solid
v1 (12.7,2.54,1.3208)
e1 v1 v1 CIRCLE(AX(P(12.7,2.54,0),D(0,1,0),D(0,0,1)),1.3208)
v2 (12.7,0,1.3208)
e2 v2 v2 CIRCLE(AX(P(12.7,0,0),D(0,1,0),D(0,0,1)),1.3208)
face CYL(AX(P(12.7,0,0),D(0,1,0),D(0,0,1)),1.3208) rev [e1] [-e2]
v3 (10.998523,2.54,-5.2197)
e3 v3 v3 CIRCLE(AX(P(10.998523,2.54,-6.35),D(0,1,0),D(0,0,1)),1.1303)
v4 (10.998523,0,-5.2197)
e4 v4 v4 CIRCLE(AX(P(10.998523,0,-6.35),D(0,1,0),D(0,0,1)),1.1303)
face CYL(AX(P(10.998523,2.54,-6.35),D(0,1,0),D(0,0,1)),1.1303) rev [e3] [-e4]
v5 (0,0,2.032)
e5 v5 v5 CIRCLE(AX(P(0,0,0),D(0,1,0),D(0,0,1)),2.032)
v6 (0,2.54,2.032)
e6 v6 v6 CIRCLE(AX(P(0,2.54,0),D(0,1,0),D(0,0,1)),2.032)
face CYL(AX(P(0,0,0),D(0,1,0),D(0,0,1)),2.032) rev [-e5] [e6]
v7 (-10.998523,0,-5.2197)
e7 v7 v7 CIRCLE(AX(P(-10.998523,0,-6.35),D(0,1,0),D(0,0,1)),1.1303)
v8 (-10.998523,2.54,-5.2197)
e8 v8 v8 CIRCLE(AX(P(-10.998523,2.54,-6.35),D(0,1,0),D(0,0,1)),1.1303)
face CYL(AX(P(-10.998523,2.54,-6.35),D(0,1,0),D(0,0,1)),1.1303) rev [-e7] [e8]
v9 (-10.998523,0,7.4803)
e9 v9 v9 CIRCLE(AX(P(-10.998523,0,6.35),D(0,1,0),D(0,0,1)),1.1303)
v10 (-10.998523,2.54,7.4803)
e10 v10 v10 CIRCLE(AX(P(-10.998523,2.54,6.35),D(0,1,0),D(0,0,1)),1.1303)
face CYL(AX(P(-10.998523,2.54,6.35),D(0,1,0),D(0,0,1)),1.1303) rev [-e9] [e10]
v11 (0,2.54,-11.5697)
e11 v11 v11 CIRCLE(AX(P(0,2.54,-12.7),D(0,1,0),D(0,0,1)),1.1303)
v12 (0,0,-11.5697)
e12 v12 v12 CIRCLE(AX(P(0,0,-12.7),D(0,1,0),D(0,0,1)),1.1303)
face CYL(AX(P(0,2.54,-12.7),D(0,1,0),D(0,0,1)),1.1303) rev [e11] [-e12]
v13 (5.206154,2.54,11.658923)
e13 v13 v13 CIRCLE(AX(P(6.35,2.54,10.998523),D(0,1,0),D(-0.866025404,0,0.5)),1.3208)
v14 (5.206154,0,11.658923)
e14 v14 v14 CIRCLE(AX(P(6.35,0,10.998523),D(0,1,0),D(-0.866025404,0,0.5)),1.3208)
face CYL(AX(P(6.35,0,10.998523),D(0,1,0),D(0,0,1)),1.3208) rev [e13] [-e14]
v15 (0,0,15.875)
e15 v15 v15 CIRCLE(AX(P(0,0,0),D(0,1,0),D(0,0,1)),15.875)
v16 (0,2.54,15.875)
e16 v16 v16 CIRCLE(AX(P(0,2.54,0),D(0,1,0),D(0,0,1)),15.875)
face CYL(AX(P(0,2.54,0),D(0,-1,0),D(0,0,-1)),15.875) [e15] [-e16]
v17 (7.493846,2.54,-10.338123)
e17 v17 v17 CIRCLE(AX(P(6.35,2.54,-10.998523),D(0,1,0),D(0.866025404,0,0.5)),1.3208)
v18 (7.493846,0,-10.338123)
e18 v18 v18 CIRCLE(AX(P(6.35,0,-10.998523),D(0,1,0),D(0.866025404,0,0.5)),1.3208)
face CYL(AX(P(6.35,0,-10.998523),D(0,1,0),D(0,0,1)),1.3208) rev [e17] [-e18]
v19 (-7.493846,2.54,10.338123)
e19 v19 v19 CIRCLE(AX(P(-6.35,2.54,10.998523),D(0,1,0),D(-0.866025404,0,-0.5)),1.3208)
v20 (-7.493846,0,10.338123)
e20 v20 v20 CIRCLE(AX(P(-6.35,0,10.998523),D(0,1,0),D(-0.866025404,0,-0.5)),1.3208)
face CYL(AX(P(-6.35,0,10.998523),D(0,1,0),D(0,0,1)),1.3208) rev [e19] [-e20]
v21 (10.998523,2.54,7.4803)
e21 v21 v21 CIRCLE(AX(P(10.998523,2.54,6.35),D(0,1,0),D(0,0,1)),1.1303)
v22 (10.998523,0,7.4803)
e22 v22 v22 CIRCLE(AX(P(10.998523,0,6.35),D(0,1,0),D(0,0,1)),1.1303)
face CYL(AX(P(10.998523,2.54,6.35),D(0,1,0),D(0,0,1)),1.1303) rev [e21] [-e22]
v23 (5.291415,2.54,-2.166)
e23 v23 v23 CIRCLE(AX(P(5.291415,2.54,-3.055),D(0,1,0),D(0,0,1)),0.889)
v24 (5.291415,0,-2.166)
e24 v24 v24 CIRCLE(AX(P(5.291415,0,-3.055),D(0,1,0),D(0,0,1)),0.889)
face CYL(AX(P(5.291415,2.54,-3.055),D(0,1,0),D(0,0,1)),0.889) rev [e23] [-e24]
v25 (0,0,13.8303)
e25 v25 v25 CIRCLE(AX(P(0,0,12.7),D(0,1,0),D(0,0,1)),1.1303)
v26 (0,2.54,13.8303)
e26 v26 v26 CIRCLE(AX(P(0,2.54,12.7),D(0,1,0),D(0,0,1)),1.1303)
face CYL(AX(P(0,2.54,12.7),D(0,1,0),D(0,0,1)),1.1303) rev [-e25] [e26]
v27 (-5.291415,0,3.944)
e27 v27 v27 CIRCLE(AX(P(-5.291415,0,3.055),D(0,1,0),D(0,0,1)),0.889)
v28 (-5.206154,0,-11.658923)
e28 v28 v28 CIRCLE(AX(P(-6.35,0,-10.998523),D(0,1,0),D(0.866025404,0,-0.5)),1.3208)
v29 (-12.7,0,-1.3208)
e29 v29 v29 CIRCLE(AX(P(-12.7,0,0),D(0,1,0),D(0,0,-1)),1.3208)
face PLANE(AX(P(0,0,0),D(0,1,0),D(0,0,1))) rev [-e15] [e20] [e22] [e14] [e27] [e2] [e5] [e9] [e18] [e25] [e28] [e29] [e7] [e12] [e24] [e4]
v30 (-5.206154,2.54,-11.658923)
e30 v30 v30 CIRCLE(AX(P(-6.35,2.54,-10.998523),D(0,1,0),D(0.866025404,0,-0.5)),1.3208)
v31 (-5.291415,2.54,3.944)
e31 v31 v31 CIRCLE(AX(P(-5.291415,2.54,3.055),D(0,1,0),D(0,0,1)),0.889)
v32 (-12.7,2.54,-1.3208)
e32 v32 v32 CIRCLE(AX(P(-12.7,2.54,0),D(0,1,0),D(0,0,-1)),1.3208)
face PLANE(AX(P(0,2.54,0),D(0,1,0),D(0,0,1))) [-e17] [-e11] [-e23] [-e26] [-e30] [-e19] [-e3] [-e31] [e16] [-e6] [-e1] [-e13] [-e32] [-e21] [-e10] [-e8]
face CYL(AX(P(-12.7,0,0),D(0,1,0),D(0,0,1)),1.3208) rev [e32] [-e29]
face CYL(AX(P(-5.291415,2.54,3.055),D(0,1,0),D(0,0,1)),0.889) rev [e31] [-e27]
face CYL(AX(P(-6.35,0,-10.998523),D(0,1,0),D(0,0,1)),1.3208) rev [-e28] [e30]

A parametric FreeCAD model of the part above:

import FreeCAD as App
import Part
import Sketcher

V = App.Vector
Q = App.Units.Quantity

doc = App.newDocument("Part")
body = doc.addObject("PartDesign::Body", "Body")

# Sketch on XZ plane
sketch1 = body.newObject("Sketcher::SketchObject", "Sketch")
sketch1.AttachmentSupport = (doc.getObject("XZ_Plane"), [""])
sketch1.MapMode = "FlatFace"
sketch1.addGeometry(Part.Circle(V(0, 0, 0), V(0, 0, 1), 16), False)
sketch1.addConstraint(Sketcher.Constraint("Coincident", 0, 3, -1, 1))
sketch1.addConstraint(Sketcher.Constraint("Diameter", 0, Q("1.25 in")))
pad1 = body.newObject("PartDesign::Pad", "Pad")
pad1.Profile = sketch1
pad1.Length = Q("0.1 in")
pad1.Reversed = True

# Sketch on XZ plane
sketch2 = body.newObject("Sketcher::SketchObject", "Sketch001")
sketch2.AttachmentSupport = (doc.getObject("XZ_Plane"), [""])
sketch2.MapMode = "FlatFace"
sketch2.AttachmentOffset = App.Placement(V(0, 0, -0.1 * 25.4), App.Rotation())
sketch2.addGeometry(Part.Circle(V(0, -12.7, 0), V(0, 0, 1), 1.1), False)
sketch2.addConstraint(Sketcher.Constraint("PointOnObject", 0, 3, -2))
sketch2.addConstraint(Sketcher.Constraint("Diameter", 0, Q("0.089 in")))
sketch2.addConstraint(Sketcher.Constraint("DistanceY", 0, 3, -1, 1, Q("0.5 in")))
doc.recompute()
hole = body.newObject("PartDesign::Hole", "Hole")
hole.Profile = sketch2
hole.ThreadType = "None"
hole.Diameter = Q("0.089 in")
hole.DepthType = "ThroughAll"
hole.Reversed = True
doc.recompute()

polarpattern = body.newObject("PartDesign::PolarPattern", "PolarPattern")
polarpattern.Originals = [hole]
polarpattern.Axis = (doc.getObject("Y_Axis"), [""])
polarpattern.Angle = 360
polarpattern.Occurrences = 6
body.Tip = polarpattern

# Sketch on XZ plane
sketch3 = body.newObject("Sketcher::SketchObject", "Sketch002")
sketch3.AttachmentSupport = (doc.getObject("XZ_Plane"), [""])
sketch3.MapMode = "FlatFace"
sketch3.AttachmentOffset = App.Placement(V(0, 0, -0.1 * 25.4), App.Rotation())
sketch3.addGeometry(Part.Circle(V(0, 0, 0), V(0, 0, 1), 2), False)
sketch3.addConstraint(Sketcher.Constraint("Coincident", 0, 3, -1, 1))
sketch3.addConstraint(Sketcher.Constraint("Diameter", 0, Q("0.16 in")))
pocket1 = body.newObject("PartDesign::Pocket", "Pocket")
pocket1.Profile = sketch3
pocket1.Length = Q("0.1 in")
pocket1.Reversed = True

# Sketch on XZ plane
sketch4 = body.newObject("Sketcher::SketchObject", "Sketch003")
sketch4.AttachmentSupport = (doc.getObject("XZ_Plane"), [""])
sketch4.MapMode = "FlatFace"
sketch4.AttachmentOffset = App.Placement(V(0, 0, -0.1 * 25.4), App.Rotation())
sketch4.addGeometry(Part.Circle(V(12.7, 0, 0), V(0, 0, 1), 1.3), False)
sketch4.addConstraint(Sketcher.Constraint("PointOnObject", 0, 3, -1))
sketch4.addConstraint(Sketcher.Constraint("Diameter", 0, Q("0.104 in")))
sketch4.addConstraint(Sketcher.Constraint("DistanceX", -1, 1, 0, 3, Q("0.5 in")))
pocket2 = body.newObject("PartDesign::Pocket", "Pocket001")
pocket2.Profile = sketch4
pocket2.Length = Q("0.1 in")
pocket2.Reversed = True
doc.recompute()

polarpattern2 = body.newObject("PartDesign::PolarPattern", "PolarPattern001")
polarpattern2.Originals = [pocket2]
polarpattern2.Axis = (doc.getObject("Y_Axis"), [""])
polarpattern2.Angle = 360
polarpattern2.Occurrences = 6
body.Tip = polarpattern2

# Sketch on XZ plane
sketch5 = body.newObject("Sketcher::SketchObject", "Sketch004")
sketch5.AttachmentSupport = (doc.getObject("XZ_Plane"), [""])
sketch5.MapMode = "FlatFace"
sketch5.AttachmentOffset = App.Placement(V(0, 0, -0.1 * 25.4), App.Rotation())
sketch5.addGeometry(Part.Circle(V(-5.3, 3.1, 0), V(0, 0, 1), 0.9), False)
sketch5.addConstraint(Sketcher.Constraint("Diameter", 0, Q("0.07 in")))
sketch5.addConstraint(Sketcher.Constraint("DistanceY", -1, 1, 0, 3, Q("3.055 mm")))
sketch5.addConstraint(Sketcher.Constraint("DistanceX", 0, 3, -1, 1, Q("5.291415 mm")))
doc.recompute()
hole2 = body.newObject("PartDesign::Hole", "Hole001")
hole2.Profile = sketch5
hole2.ThreadType = "None"
hole2.Diameter = Q("0.07 in")
hole2.DepthType = "ThroughAll"
hole2.Reversed = True

# Sketch on XZ plane
sketch6 = body.newObject("Sketcher::SketchObject", "Sketch005")
sketch6.AttachmentSupport = (doc.getObject("XZ_Plane"), [""])
sketch6.MapMode = "FlatFace"
sketch6.AttachmentOffset = App.Placement(V(0, 0, -0.1 * 25.4), App.Rotation())
sketch6.addGeometry(Part.Circle(V(5.3, -3.1, 0), V(0, 0, 1), 0.9), False)
sketch6.addConstraint(Sketcher.Constraint("Diameter", 0, Q("0.07 in")))
sketch6.addConstraint(Sketcher.Constraint("DistanceY", 0, 3, -1, 1, Q("3.055 mm")))
sketch6.addConstraint(Sketcher.Constraint("DistanceX", -1, 1, 0, 3, Q("5.291415 mm")))
doc.recompute()
hole3 = body.newObject("PartDesign::Hole", "Hole002")
hole3.Profile = sketch6
hole3.ThreadType = "None"
hole3.Diameter = Q("0.07 in")
hole3.DepthType = "ThroughAll"
hole3.Reversed = True

doc.recompute()
